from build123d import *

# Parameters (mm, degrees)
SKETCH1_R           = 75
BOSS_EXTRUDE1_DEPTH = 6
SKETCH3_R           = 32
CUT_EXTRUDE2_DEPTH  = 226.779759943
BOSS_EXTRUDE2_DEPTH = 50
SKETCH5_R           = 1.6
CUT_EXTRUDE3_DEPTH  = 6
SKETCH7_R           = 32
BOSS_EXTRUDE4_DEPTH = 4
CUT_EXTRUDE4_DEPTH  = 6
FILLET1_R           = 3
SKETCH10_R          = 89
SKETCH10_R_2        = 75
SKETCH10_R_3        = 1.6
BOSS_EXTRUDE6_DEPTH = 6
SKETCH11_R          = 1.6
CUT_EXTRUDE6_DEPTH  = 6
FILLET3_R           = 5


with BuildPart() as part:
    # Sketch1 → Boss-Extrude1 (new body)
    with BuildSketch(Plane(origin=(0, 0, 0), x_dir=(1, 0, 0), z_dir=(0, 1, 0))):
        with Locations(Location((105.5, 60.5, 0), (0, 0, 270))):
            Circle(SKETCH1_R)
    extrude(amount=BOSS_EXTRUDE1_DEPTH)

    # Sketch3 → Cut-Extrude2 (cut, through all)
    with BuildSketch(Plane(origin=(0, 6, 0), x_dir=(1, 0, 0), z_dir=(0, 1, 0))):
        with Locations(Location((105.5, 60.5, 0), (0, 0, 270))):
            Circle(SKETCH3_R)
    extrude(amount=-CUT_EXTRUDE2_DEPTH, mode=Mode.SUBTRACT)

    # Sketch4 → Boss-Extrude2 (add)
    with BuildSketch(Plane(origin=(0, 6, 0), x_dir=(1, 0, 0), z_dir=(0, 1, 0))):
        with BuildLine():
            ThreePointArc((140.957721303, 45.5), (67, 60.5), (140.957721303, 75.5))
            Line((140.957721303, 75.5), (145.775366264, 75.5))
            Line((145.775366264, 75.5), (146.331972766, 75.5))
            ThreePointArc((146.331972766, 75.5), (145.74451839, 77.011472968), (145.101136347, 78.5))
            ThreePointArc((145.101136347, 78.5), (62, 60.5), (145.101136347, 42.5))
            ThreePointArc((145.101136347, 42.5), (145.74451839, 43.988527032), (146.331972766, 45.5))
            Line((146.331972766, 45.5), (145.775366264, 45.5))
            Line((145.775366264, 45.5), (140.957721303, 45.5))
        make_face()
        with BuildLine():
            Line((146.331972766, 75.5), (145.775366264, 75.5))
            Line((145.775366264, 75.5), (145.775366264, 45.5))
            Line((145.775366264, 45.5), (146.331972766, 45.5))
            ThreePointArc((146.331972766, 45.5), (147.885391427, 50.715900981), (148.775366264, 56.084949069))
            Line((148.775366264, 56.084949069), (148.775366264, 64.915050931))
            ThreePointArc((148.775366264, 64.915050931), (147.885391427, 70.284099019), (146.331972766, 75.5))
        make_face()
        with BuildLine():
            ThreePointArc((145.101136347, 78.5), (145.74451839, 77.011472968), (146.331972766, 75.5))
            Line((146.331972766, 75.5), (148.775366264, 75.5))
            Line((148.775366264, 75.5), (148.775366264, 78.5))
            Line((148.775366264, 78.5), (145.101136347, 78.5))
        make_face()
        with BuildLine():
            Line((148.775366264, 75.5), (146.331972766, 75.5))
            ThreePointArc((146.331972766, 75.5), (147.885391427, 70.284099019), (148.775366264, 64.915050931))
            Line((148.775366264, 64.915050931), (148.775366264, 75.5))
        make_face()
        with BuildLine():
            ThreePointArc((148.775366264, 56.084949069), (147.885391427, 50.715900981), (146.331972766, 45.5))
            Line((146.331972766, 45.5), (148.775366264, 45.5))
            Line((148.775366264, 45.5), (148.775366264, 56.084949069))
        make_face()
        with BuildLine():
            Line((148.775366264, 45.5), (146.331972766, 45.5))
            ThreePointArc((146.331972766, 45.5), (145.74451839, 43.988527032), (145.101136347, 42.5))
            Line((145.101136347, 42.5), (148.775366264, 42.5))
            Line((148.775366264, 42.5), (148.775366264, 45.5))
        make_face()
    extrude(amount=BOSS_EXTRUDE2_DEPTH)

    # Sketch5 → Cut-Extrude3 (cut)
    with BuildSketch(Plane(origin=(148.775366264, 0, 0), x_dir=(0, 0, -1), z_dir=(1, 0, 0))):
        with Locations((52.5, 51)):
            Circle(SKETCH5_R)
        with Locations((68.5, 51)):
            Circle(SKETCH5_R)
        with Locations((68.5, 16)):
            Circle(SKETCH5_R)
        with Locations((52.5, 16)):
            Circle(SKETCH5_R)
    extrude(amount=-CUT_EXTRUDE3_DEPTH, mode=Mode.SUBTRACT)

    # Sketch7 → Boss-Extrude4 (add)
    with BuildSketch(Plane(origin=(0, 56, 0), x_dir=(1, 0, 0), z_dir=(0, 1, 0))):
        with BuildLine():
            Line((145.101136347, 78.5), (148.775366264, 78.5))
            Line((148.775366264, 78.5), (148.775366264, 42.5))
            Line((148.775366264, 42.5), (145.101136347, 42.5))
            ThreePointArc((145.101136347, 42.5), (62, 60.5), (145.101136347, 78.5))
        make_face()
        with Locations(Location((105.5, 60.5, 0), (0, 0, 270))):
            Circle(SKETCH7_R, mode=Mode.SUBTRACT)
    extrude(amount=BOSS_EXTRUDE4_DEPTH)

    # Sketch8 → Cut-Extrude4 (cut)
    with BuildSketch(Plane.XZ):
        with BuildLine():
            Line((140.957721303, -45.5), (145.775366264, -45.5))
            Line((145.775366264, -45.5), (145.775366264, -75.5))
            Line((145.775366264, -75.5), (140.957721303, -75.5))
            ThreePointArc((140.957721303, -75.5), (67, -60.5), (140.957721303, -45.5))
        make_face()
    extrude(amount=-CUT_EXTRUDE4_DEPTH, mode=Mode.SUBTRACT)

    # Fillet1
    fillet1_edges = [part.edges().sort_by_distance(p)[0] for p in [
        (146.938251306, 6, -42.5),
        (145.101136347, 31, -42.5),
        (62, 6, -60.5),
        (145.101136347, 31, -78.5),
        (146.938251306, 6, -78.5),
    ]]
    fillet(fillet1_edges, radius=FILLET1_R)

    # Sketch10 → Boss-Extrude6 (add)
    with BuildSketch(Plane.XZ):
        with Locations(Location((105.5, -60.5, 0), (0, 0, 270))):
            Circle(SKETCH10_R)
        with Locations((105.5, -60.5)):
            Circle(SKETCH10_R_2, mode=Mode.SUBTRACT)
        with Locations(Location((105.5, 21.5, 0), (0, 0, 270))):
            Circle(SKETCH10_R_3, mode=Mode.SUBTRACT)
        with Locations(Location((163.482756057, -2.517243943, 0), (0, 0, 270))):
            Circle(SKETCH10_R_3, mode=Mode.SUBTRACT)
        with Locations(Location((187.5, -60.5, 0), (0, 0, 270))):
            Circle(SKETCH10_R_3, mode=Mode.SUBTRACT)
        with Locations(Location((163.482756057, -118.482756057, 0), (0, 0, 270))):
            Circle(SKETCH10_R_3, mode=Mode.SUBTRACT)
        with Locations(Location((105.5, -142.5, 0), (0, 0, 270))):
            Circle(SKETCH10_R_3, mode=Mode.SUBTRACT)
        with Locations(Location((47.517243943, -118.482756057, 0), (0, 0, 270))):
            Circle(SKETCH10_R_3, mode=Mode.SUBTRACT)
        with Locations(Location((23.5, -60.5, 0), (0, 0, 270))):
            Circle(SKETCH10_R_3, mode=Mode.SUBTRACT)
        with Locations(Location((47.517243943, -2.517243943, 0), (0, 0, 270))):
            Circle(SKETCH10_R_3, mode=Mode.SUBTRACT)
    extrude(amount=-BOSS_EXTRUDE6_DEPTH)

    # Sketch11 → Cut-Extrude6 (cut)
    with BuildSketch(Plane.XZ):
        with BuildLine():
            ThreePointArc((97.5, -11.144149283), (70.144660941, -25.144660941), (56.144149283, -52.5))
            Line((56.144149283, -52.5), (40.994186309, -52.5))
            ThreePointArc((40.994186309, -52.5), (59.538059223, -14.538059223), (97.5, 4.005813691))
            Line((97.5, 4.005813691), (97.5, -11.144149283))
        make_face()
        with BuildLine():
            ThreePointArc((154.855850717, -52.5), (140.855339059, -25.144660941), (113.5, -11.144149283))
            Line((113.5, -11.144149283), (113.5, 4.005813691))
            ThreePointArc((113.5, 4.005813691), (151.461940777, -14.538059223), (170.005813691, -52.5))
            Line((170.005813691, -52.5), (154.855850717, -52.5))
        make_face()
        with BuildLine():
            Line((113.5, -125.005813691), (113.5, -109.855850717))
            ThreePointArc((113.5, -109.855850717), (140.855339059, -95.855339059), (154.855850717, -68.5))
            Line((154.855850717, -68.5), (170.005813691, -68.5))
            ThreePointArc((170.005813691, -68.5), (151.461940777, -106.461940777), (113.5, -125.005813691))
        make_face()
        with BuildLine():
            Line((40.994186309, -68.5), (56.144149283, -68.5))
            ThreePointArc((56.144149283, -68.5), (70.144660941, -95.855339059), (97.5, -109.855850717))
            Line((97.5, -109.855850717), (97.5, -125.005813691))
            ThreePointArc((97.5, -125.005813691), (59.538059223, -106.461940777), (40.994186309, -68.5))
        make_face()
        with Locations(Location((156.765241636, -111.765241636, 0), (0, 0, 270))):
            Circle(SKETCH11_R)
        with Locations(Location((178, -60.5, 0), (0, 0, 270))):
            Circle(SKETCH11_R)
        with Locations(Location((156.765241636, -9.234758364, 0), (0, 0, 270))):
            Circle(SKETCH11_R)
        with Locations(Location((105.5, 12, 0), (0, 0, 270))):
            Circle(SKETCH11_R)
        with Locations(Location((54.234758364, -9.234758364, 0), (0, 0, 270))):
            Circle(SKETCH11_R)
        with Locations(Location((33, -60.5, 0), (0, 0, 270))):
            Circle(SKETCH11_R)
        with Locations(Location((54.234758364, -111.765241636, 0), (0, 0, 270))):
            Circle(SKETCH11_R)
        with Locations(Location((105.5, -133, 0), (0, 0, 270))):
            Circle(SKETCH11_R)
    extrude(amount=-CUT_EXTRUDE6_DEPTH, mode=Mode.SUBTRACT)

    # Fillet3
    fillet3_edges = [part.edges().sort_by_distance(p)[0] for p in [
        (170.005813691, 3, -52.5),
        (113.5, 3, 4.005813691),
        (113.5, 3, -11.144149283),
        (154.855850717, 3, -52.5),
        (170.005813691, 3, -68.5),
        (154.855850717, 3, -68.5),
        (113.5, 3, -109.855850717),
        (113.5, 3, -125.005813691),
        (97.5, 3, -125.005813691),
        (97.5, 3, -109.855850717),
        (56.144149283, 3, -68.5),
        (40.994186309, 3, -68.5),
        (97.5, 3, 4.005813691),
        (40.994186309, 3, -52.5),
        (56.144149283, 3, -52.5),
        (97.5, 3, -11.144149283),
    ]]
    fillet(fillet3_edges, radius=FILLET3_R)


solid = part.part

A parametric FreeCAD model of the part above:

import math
import FreeCAD as App
import Part
import Sketcher
from FreeCAD import Vector


def edges_at(feature, points):
    """Names of the edges that pass closest to the given points."""
    edges = feature.Shape.Edges
    near = lambda p: min(range(len(edges)), key=lambda i: edges[i].distToShape(Part.Vertex(*p))[0])
    return sorted({f"Edge{near(p) + 1}" for p in points})

doc = App.newDocument("Part")
body = doc.addObject("PartDesign::Body", "Body")

sketch1 = doc.addObject("Sketcher::SketchObject", "Sketch")
body.addObject(sketch1)
sketch1.AttachmentSupport = (doc.XZ_Plane, [""])
sketch1.MapMode = "FlatFace"
sketch1.addGeometry(Part.Circle(Vector(106, -60, 0), Vector(0, 0, 1), 75), False)
sketch1.addConstraint(Sketcher.Constraint("Diameter", 0, 150.0))
sketch1.addConstraint(Sketcher.Constraint("DistanceX", -1, 1, 0, 3, 105.5))
sketch1.addConstraint(Sketcher.Constraint("DistanceY", 0, 3, -1, 1, 60.5))
pad1 = doc.addObject("PartDesign::Pad", "Pad")
body.addObject(pad1)
pad1.Profile = sketch1
pad1.Length = 6
pad1.Reversed = True

sketch2 = doc.addObject("Sketcher::SketchObject", "Sketch001")
body.addObject(sketch2)
sketch2.AttachmentSupport = (doc.XZ_Plane, [""])
sketch2.MapMode = "FlatFace"
sketch2.AttachmentOffset = App.Placement(Vector(0, 0, -6), App.Rotation())
sketch2.addGeometry(Part.Circle(Vector(106, -60, 0), Vector(0, 0, 1), 32), False)
sketch2.addConstraint(Sketcher.Constraint("Diameter", 0, 64.0))
sketch2.addConstraint(Sketcher.Constraint("DistanceX", -1, 1, 0, 3, 105.5))
sketch2.addConstraint(Sketcher.Constraint("DistanceY", 0, 3, -1, 1, 60.5))
pocket1 = doc.addObject("PartDesign::Pocket", "Pocket")
body.addObject(pocket1)
pocket1.Profile = sketch2
pocket1.Type = "ThroughAll"
pocket1.Reversed = True

sketch3 = doc.addObject("Sketcher::SketchObject", "Sketch002")
body.addObject(sketch3)
sketch3.AttachmentSupport = (doc.XZ_Plane, [""])
sketch3.MapMode = "FlatFace"
sketch3.AttachmentOffset = App.Placement(Vector(0, 0, -6), App.Rotation())
sketch3.addGeometry(Part.ArcOfCircle(Part.Circle(Vector(105.5, -60.5, 0), Vector(0, 0, 1), 43.5), math.radians(24), math.radians(336)), False)
sketch3.addGeometry(Part.LineSegment(Vector(145.1, -42.5, 0), Vector(148.8, -42.5, 0)), False)
sketch3.addGeometry(Part.LineSegment(Vector(148.8, -42.5, 0), Vector(148.8, -78.5, 0)), False)
sketch3.addGeometry(Part.LineSegment(Vector(148.8, -78.5, 0), Vector(145.1, -78.5, 0)), False)
sketch3.addGeometry(Part.ArcOfCircle(Part.Circle(Vector(105.5, -60.5, 0), Vector(0, 0, 1), 38.5), math.radians(23), math.radians(337)), False)
sketch3.addGeometry(Part.LineSegment(Vector(141, -75.5, 0), Vector(145.8, -75.5, 0)), False)
sketch3.addGeometry(Part.LineSegment(Vector(145.8, -75.5, 0), Vector(145.8, -45.5, 0)), False)
sketch3.addGeometry(Part.LineSegment(Vector(145.8, -45.5, 0), Vector(141, -45.5, 0)), False)
sketch3.addConstraint(Sketcher.Constraint("Coincident", 0, 1, 1, 1))
sketch3.addConstraint(Sketcher.Constraint("Coincident", 1, 2, 2, 1))
sketch3.addConstraint(Sketcher.Constraint("Coincident", 2, 2, 3, 1))
sketch3.addConstraint(Sketcher.Constraint("Coincident", 3, 2, 0, 2))
sketch3.addConstraint(Sketcher.Constraint("Coincident", 4, 2, 5, 1))
sketch3.addConstraint(Sketcher.Constraint("Coincident", 5, 2, 6, 1))
sketch3.addConstraint(Sketcher.Constraint("Coincident", 6, 2, 7, 1))
sketch3.addConstraint(Sketcher.Constraint("Coincident", 7, 2, 4, 1))
sketch3.addConstraint(Sketcher.Constraint("Horizontal", 1))
sketch3.addConstraint(Sketcher.Constraint("Vertical", 2))
sketch3.addConstraint(Sketcher.Constraint("Horizontal", 3))
sketch3.addConstraint(Sketcher.Constraint("Horizontal", 5))
sketch3.addConstraint(Sketcher.Constraint("Vertical", 6))
sketch3.addConstraint(Sketcher.Constraint("Horizontal", 7))
sketch3.addConstraint(Sketcher.Constraint("Coincident", 4, 3, 0, 3))
sketch3.addConstraint(Sketcher.Constraint("Vertical", 0, 1, 3, 2))
sketch3.addConstraint(Sketcher.Constraint("Vertical", 4, 2, 7, 2))
sketch3.addConstraint(Sketcher.Constraint("Radius", 0, 43.5))
sketch3.addConstraint(Sketcher.Constraint("Radius", 4, 38.5))
sketch3.addConstraint(Sketcher.Constraint("DistanceY", 2, 2, 2, 1, 36.0))
sketch3.addConstraint(Sketcher.Constraint("DistanceY", 6, 1, 6, 2, 30.0))
sketch3.addConstraint(Sketcher.Constraint("DistanceX", 5, 2, 2, 2, 3.0))
sketch3.addConstraint(Sketcher.Constraint("DistanceX", -1, 1, 0, 3, 105.5))
sketch3.addConstraint(Sketcher.Constraint("DistanceY", 0, 3, -1, 1, 60.5))
sketch3.addConstraint(Sketcher.Constraint("DistanceX", 1, 1, 1, 2, 3.67423))
pad2 = doc.addObject("PartDesign::Pad", "Pad001")
body.addObject(pad2)
pad2.Profile = sketch3
pad2.Length = 50
pad2.Reversed = True

sketch4 = doc.addObject("Sketcher::SketchObject", "Sketch003")
body.addObject(sketch4)
sketch4.AttachmentSupport = (doc.YZ_Plane, [""])
sketch4.MapMode = "FlatFace"
sketch4.AttachmentOffset = App.Placement(Vector(0, 0, 148.775366), App.Rotation())
sketch4.addGeometry(Part.Circle(Vector(51, -52.5, 0), Vector(0, 0, 1), 1.6), False)
sketch4.addGeometry(Part.Circle(Vector(51, -68.5, 0), Vector(0, 0, 1), 1.6), False)
sketch4.addGeometry(Part.Circle(Vector(16, -68.5, 0), Vector(0, 0, 1), 1.6), False)
sketch4.addGeometry(Part.Circle(Vector(16, -52.5, 0), Vector(0, 0, 1), 1.6), False)
sketch4.addConstraint(Sketcher.Constraint("Equal", 0, 1))
sketch4.addConstraint(Sketcher.Constraint("Equal", 1, 2))
sketch4.addConstraint(Sketcher.Constraint("Equal", 2, 3))
sketch4.addConstraint(Sketcher.Constraint("Horizontal", 1, 3, 2, 3))
sketch4.addConstraint(Sketcher.Constraint("Horizontal", 0, 3, 3, 3))
sketch4.addConstraint(Sketcher.Constraint("Vertical", 0, 3, 1, 3))
sketch4.addConstraint(Sketcher.Constraint("Vertical", 2, 3, 3, 3))
sketch4.addConstraint(Sketcher.Constraint("Diameter", 0, 3.2))
sketch4.addConstraint(Sketcher.Constraint("DistanceX", -1, 1, 0, 3, 51.0))
sketch4.addConstraint(Sketcher.Constraint("DistanceX", -1, 1, 2, 3, 16.0))
sketch4.addConstraint(Sketcher.Constraint("DistanceY", 1, 3, 0, 3, 16.0))
sketch4.addConstraint(Sketcher.Constraint("DistanceY", 0, 3, -1, 1, 52.5))
pocket2 = doc.addObject("PartDesign::Pocket", "Pocket001")
body.addObject(pocket2)
pocket2.Profile = sketch4
pocket2.Length = 6

sketch5 = doc.addObject("Sketcher::SketchObject", "Sketch004")
body.addObject(sketch5)
sketch5.AttachmentSupport = (doc.XZ_Plane, [""])
sketch5.MapMode = "FlatFace"
sketch5.AttachmentOffset = App.Placement(Vector(0, 0, -56), App.Rotation())
sketch5.addGeometry(Part.LineSegment(Vector(148.8, -78.5, 0), Vector(145.1, -78.5, 0)), False)
sketch5.addGeometry(Part.ArcOfCircle(Part.Circle(Vector(105.5, -60.5, 0), Vector(0, 0, 1), 43.5), math.radians(24), math.radians(336)), False)
sketch5.addGeometry(Part.LineSegment(Vector(145.1, -42.5, 0), Vector(148.8, -42.5, 0)), False)
sketch5.addGeometry(Part.LineSegment(Vector(148.8, -42.5, 0), Vector(148.8, -78.5, 0)), False)
sketch5.addGeometry(Part.Circle(Vector(105.5, -60.5, 0), Vector(0, 0, 1), 32), False)
sketch5.addConstraint(Sketcher.Constraint("Coincident", 0, 2, 1, 2))
sketch5.addConstraint(Sketcher.Constraint("Coincident", 1, 1, 2, 1))
sketch5.addConstraint(Sketcher.Constraint("Coincident", 2, 2, 3, 1))
sketch5.addConstraint(Sketcher.Constraint("Coincident", 3, 2, 0, 1))
sketch5.addConstraint(Sketcher.Constraint("Horizontal", 0))
sketch5.addConstraint(Sketcher.Constraint("Horizontal", 2))
sketch5.addConstraint(Sketcher.Constraint("Vertical", 3))
sketch5.addConstraint(Sketcher.Constraint("Coincident", 4, 3, 1, 3))
sketch5.addConstraint(Sketcher.Constraint("Vertical", 0, 2, 1, 1))
sketch5.addConstraint(Sketcher.Constraint("Diameter", 4, 64.0))
sketch5.addConstraint(Sketcher.Constraint("Radius", 1, 43.5))
sketch5.addConstraint(Sketcher.Constraint("DistanceY", 3, 2, 3, 1, 36.0))
sketch5.addConstraint(Sketcher.Constraint("DistanceX", -1, 1, 1, 3, 105.5))
sketch5.addConstraint(Sketcher.Constraint("DistanceY", 1, 3, -1, 1, 60.5))
sketch5.addConstraint(Sketcher.Constraint("DistanceX", 0, 2, 0, 1, 3.67423))
pad3 = doc.addObject("PartDesign::Pad", "Pad002")
body.addObject(pad3)
pad3.Profile = sketch5
pad3.Length = 4
pad3.Reversed = True

sketch6 = doc.addObject("Sketcher::SketchObject", "Sketch005")
body.addObject(sketch6)
sketch6.AttachmentSupport = (doc.XZ_Plane, [""])
sketch6.MapMode = "FlatFace"
sketch6.addGeometry(Part.LineSegment(Vector(145.8, -45.5, 0), Vector(141, -45.5, 0)), False)
sketch6.addGeometry(Part.ArcOfCircle(Part.Circle(Vector(105.5, -60.5, 0), Vector(0, 0, 1), 38.5), math.radians(23), math.radians(337)), False)
sketch6.addGeometry(Part.LineSegment(Vector(141, -75.5, 0), Vector(145.8, -75.5, 0)), False)
sketch6.addGeometry(Part.LineSegment(Vector(145.8, -75.5, 0), Vector(145.8, -45.5, 0)), False)
sketch6.addConstraint(Sketcher.Constraint("Coincident", 0, 2, 1, 1))
sketch6.addConstraint(Sketcher.Constraint("Coincident", 1, 2, 2, 1))
sketch6.addConstraint(Sketcher.Constraint("Coincident", 2, 2, 3, 1))
sketch6.addConstraint(Sketcher.Constraint("Coincident", 3, 2, 0, 1))
sketch6.addConstraint(Sketcher.Constraint("Horizontal", 0))
sketch6.addConstraint(Sketcher.Constraint("Horizontal", 2))
sketch6.addConstraint(Sketcher.Constraint("Vertical", 3))
sketch6.addConstraint(Sketcher.Constraint("Vertical", 0, 2, 1, 2))
sketch6.addConstraint(Sketcher.Constraint("Radius", 1, 38.5))
sketch6.addConstraint(Sketcher.Constraint("DistanceY", 3, 1, 3, 2, 30.0))
sketch6.addConstraint(Sketcher.Constraint("DistanceX", -1, 1, 1, 3, 105.5))
sketch6.addConstraint(Sketcher.Constraint("DistanceY", 1, 3, -1, 1, 60.5))
sketch6.addConstraint(Sketcher.Constraint("DistanceX", 0, 2, 0, 1, 4.817645))
pocket3 = doc.addObject("PartDesign::Pocket", "Pocket002")
body.addObject(pocket3)
pocket3.Profile = sketch6
pocket3.Length = 6
doc.recompute()

fillet = doc.addObject("PartDesign::Fillet", "Fillet")
body.addObject(fillet)
fillet.Base = (pocket3, edges_at(pocket3, [
    (146.938, 6, -42.5),
    (145.101, 31, -42.5),
    (62, 6, -60.5),
    (145.101, 31, -78.5),
    (146.938, 6, -78.5),
]))
fillet.Radius = 3

sketch7 = doc.addObject("Sketcher::SketchObject", "Sketch006")
body.addObject(sketch7)
sketch7.AttachmentSupport = (doc.XZ_Plane, [""])
sketch7.MapMode = "FlatFace"
sketch7.addGeometry(Part.Circle(Vector(105.5, -60.5, 0), Vector(0, 0, 1), 89), False)
sketch7.addGeometry(Part.Circle(Vector(47.5, -2.5, 0), Vector(0, 0, 1), 1.6), False)
sketch7.addGeometry(Part.Circle(Vector(105.5, 21.5, 0), Vector(0, 0, 1), 1.6), False)
sketch7.addGeometry(Part.Circle(Vector(105.5, -60.5, 0), Vector(0, 0, 1), 75), False)
sketch7.addGeometry(Part.Circle(Vector(23.5, -60.5, 0), Vector(0, 0, 1), 1.6), False)
sketch7.addGeometry(Part.Circle(Vector(47.5, -118.5, 0), Vector(0, 0, 1), 1.6), False)
sketch7.addGeometry(Part.Circle(Vector(163.5, -2.5, 0), Vector(0, 0, 1), 1.6), False)
sketch7.addGeometry(Part.Circle(Vector(187.5, -60.5, 0), Vector(0, 0, 1), 1.6), False)
sketch7.addGeometry(Part.Circle(Vector(105.5, -142.5, 0), Vector(0, 0, 1), 1.6), False)
sketch7.addGeometry(Part.Circle(Vector(163.5, -118.5, 0), Vector(0, 0, 1), 1.6), False)
sketch7.addConstraint(Sketcher.Constraint("Coincident", 3, 3, 0, 3))
sketch7.addConstraint(Sketcher.Constraint("Equal", 1, 2))
sketch7.addConstraint(Sketcher.Constraint("Equal", 2, 4))
sketch7.addConstraint(Sketcher.Constraint("Equal", 4, 5))
sketch7.addConstraint(Sketcher.Constraint("Equal", 5, 6))
sketch7.addConstraint(Sketcher.Constraint("Equal", 6, 7))
sketch7.addConstraint(Sketcher.Constraint("Equal", 7, 8))
sketch7.addConstraint(Sketcher.Constraint("Equal", 8, 9))
sketch7.addConstraint(Sketcher.Constraint("Horizontal", 3, 3, 4, 3))
sketch7.addConstraint(Sketcher.Constraint("Horizontal", 1, 3, 6, 3))
sketch7.addConstraint(Sketcher.Constraint("Horizontal", 4, 3, 7, 3))
sketch7.addConstraint(Sketcher.Constraint("Horizontal", 5, 3, 9, 3))
sketch7.addConstraint(Sketcher.Constraint("Vertical", 0, 3, 2, 3))
sketch7.addConstraint(Sketcher.Constraint("Vertical", 1, 3, 5, 3))
sketch7.addConstraint(Sketcher.Constraint("Vertical", 3, 3, 8, 3))
sketch7.addConstraint(Sketcher.Constraint("Vertical", 6, 3, 9, 3))
sketch7.addConstraint(Sketcher.Constraint("Diameter", 0, 178.0))
sketch7.addConstraint(Sketcher.Constraint("Diameter", 3, 150.0))
sketch7.addConstraint(Sketcher.Constraint("Diameter", 1, 3.2))
sketch7.addConstraint(Sketcher.Constraint("DistanceY", 0, 3, 2, 3, 82.0))
sketch7.addConstraint(Sketcher.Constraint("DistanceX", 4, 3, 0, 3, 82.0))
sketch7.addConstraint(Sketcher.Constraint("DistanceX", 0, 3, 7, 3, 82.0))
sketch7.addConstraint(Sketcher.Constraint("DistanceY", 8, 3, 0, 3, 82.0))
sketch7.addConstraint(Sketcher.Constraint("DistanceX", -1, 1, 0, 3, 105.5))
sketch7.addConstraint(Sketcher.Constraint("DistanceY", 0, 3, -1, 1, 60.5))
sketch7.addConstraint(Sketcher.Constraint("DistanceX", -1, 1, 1, 3, 47.517244))
sketch7.addConstraint(Sketcher.Constraint("DistanceY", 1, 3, -1, 1, 2.517244))
sketch7.addConstraint(Sketcher.Constraint("DistanceY", 5, 3, -1, 1, 118.482756))
sketch7.addConstraint(Sketcher.Constraint("DistanceX", -1, 1, 6, 3, 163.482756))
pad4 = doc.addObject("PartDesign::Pad", "Pad003")
body.addObject(pad4)
pad4.Profile = sketch7
pad4.Length = 6
pad4.Reversed = True

sketch8 = doc.addObject("Sketcher::SketchObject", "Sketch007")
body.addObject(sketch8)
sketch8.AttachmentSupport = (doc.XZ_Plane, [""])
sketch8.MapMode = "FlatFace"
sketch8.addGeometry(Part.ArcOfCircle(Part.Circle(Vector(105.5, -60.5, 0), Vector(0, 0, 1), 50), math.radians(99), math.radians(171)), False)
sketch8.addGeometry(Part.LineSegment(Vector(97.5, -11.1, 0), Vector(97.5, 4, 0)), False)
sketch8.addGeometry(Part.ArcOfCircle(Part.Circle(Vector(105.5, -60.5, 0), Vector(0, 0, 1), 65), math.radians(97), math.radians(173)), False)
sketch8.addGeometry(Part.LineSegment(Vector(41, -52.5, 0), Vector(56.1, -52.5, 0)), False)
sketch8.addGeometry(Part.ArcOfCircle(Part.Circle(Vector(105.5, -60.5, 0), Vector(0, 0, 1), 50), math.radians(9), math.radians(81)), False)
sketch8.addGeometry(Part.LineSegment(Vector(154.9, -52.5, 0), Vector(170, -52.5, 0)), False)
sketch8.addGeometry(Part.ArcOfCircle(Part.Circle(Vector(105.5, -60.5, 0), Vector(0, 0, 1), 65), math.radians(7), math.radians(83)), False)
sketch8.addGeometry(Part.LineSegment(Vector(113.5, 4, 0), Vector(113.5, -11.1, 0)), False)
sketch8.addGeometry(Part.LineSegment(Vector(113.5, -109.9, 0), Vector(113.5, -125, 0)), False)
sketch8.addGeometry(Part.ArcOfCircle(Part.Circle(Vector(105.5, -60.5, 0), Vector(0, 0, 1), 65), math.radians(-83), math.radians(-7)), False)
sketch8.addGeometry(Part.LineSegment(Vector(170, -68.5, 0), Vector(154.9, -68.5, 0)), False)
sketch8.addGeometry(Part.ArcOfCircle(Part.Circle(Vector(105.5, -60.5, 0), Vector(0, 0, 1), 50), math.radians(-81), math.radians(-9)), False)
sketch8.addGeometry(Part.LineSegment(Vector(56.1, -68.5, 0), Vector(41, -68.5, 0)), False)
sketch8.addGeometry(Part.ArcOfCircle(Part.Circle(Vector(105.5, -60.5, 0), Vector(0, 0, 1), 65), math.radians(-173), math.radians(-97)), False)
sketch8.addGeometry(Part.LineSegment(Vector(97.5, -125, 0), Vector(97.5, -109.9, 0)), False)
sketch8.addGeometry(Part.ArcOfCircle(Part.Circle(Vector(105.5, -60.5, 0), Vector(0, 0, 1), 50), math.radians(-171), math.radians(-99)), False)
sketch8.addGeometry(Part.Circle(Vector(156.8, -111.8, 0), Vector(0, 0, 1), 1.6), False)
sketch8.addGeometry(Part.Circle(Vector(178, -60.5, 0), Vector(0, 0, 1), 1.6), False)
sketch8.addGeometry(Part.Circle(Vector(156.8, -9.2, 0), Vector(0, 0, 1), 1.6), False)
sketch8.addGeometry(Part.Circle(Vector(105.5, 12, 0), Vector(0, 0, 1), 1.6), False)
sketch8.addGeometry(Part.Circle(Vector(54.2, -9.2, 0), Vector(0, 0, 1), 1.6), False)
sketch8.addGeometry(Part.Circle(Vector(33, -60.5, 0), Vector(0, 0, 1), 1.6), False)
sketch8.addGeometry(Part.Circle(Vector(54.2, -111.8, 0), Vector(0, 0, 1), 1.6), False)
sketch8.addGeometry(Part.Circle(Vector(105.5, -133, 0), Vector(0, 0, 1), 1.6), False)
sketch8.addConstraint(Sketcher.Constraint("Coincident", 0, 1, 1, 1))
sketch8.addConstraint(Sketcher.Constraint("Coincident", 1, 2, 2, 1))
sketch8.addConstraint(Sketcher.Constraint("Coincident", 2, 2, 3, 1))
sketch8.addConstraint(Sketcher.Constraint("Coincident", 3, 2, 0, 2))
sketch8.addConstraint(Sketcher.Constraint("Coincident", 4, 1, 5, 1))
sketch8.addConstraint(Sketcher.Constraint("Coincident", 5, 2, 6, 1))
sketch8.addConstraint(Sketcher.Constraint("Coincident", 6, 2, 7, 1))
sketch8.addConstraint(Sketcher.Constraint("Coincident", 7, 2, 4, 2))
sketch8.addConstraint(Sketcher.Constraint("Coincident", 8, 2, 9, 1))
sketch8.addConstraint(Sketcher.Constraint("Coincident", 9, 2, 10, 1))
sketch8.addConstraint(Sketcher.Constraint("Coincident", 10, 2, 11, 2))
sketch8.addConstraint(Sketcher.Constraint("Coincident", 11, 1, 8, 1))
sketch8.addConstraint(Sketcher.Constraint("Coincident", 12, 2, 13, 1))
sketch8.addConstraint(Sketcher.Constraint("Coincident", 13, 2, 14, 1))
sketch8.addConstraint(Sketcher.Constraint("Coincident", 14, 2, 15, 2))
sketch8.addConstraint(Sketcher.Constraint("Coincident", 15, 1, 12, 1))
sketch8.addConstraint(Sketcher.Constraint("Vertical", 1))
sketch8.addConstraint(Sketcher.Constraint("Horizontal", 3))
sketch8.addConstraint(Sketcher.Constraint("Horizontal", 5))
sketch8.addConstraint(Sketcher.Constraint("Vertical", 7))
sketch8.addConstraint(Sketcher.Constraint("Vertical", 8))
sketch8.addConstraint(Sketcher.Constraint("Horizontal", 10))
sketch8.addConstraint(Sketcher.Constraint("Horizontal", 12))
sketch8.addConstraint(Sketcher.Constraint("Vertical", 14))
sketch8.addConstraint(Sketcher.Constraint("Coincident", 2, 3, 0, 3))
sketch8.addConstraint(Sketcher.Constraint("Coincident", 4, 3, 0, 3))
sketch8.addConstraint(Sketcher.Constraint("Coincident", 6, 3, 0, 3))
sketch8.addConstraint(Sketcher.Constraint("Coincident", 9, 3, 0, 3))
sketch8.addConstraint(Sketcher.Constraint("Coincident", 11, 3, 0, 3))
sketch8.addConstraint(Sketcher.Constraint("Coincident", 13, 3, 0, 3))
sketch8.addConstraint(Sketcher.Constraint("Coincident", 15, 3, 0, 3))
sketch8.addConstraint(Sketcher.Constraint("Equal", 0, 4))
sketch8.addConstraint(Sketcher.Constraint("Equal", 2, 6))
sketch8.addConstraint(Sketcher.Constraint("Equal", 6, 9))
sketch8.addConstraint(Sketcher.Constraint("Equal", 4, 11))
sketch8.addConstraint(Sketcher.Constraint("Equal", 9, 13))
sketch8.addConstraint(Sketcher.Constraint("Equal", 11, 15))
sketch8.addConstraint(Sketcher.Constraint("Equal", 16, 17))
sketch8.addConstraint(Sketcher.Constraint("Equal", 17, 18))
sketch8.addConstraint(Sketcher.Constraint("Equal", 18, 19))
sketch8.addConstraint(Sketcher.Constraint("Equal", 19, 20))
sketch8.addConstraint(Sketcher.Constraint("Equal", 20, 21))
sketch8.addConstraint(Sketcher.Constraint("Equal", 21, 22))
sketch8.addConstraint(Sketcher.Constraint("Equal", 22, 23))
sketch8.addConstraint(Sketcher.Constraint("Horizontal", 15, 3, 17, 3))
sketch8.addConstraint(Sketcher.Constraint("Horizontal", 18, 3, 20, 3))
sketch8.addConstraint(Sketcher.Constraint("Horizontal", 17, 3, 21, 3))
sketch8.addConstraint(Sketcher.Constraint("Horizontal", 16, 3, 22, 3))
sketch8.addConstraint(Sketcher.Constraint("Horizontal", 3, 2, 4, 1))
sketch8.addConstraint(Sketcher.Constraint("Horizontal", 1, 2, 6, 2))
sketch8.addConstraint(Sketcher.Constraint("Horizontal", 10, 2, 12, 2))
sketch8.addConstraint(Sketcher.Constraint("Horizontal", 8, 2, 13, 2))
sketch8.addConstraint(Sketcher.Constraint("Vertical", 16, 3, 18, 3))
sketch8.addConstraint(Sketcher.Constraint("Vertical", 15, 3, 19, 3))
sketch8.addConstraint(Sketcher.Constraint("Vertical", 20, 3, 22, 3))
sketch8.addConstraint(Sketcher.Constraint("Vertical", 19, 3, 23, 3))
sketch8.addConstraint(Sketcher.Constraint("Vertical", 7, 2, 8, 2))
sketch8.addConstraint(Sketcher.Constraint("Vertical", 5, 2, 9, 2))
sketch8.addConstraint(Sketcher.Constraint("Equal", 12, 1))
sketch8.addConstraint(Sketcher.Constraint("Radius", 0, 50.0))
sketch8.addConstraint(Sketcher.Constraint("Radius", 2, 65.0))
sketch8.addConstraint(Sketcher.Constraint("Diameter", 16, 3.2))
sketch8.addConstraint(Sketcher.Constraint("DistanceX", -1, 1, 17, 3, 178.0))
sketch8.addConstraint(Sketcher.Constraint("DistanceY", -1, 1, 19, 3, 12.0))
sketch8.addConstraint(Sketcher.Constraint("DistanceX", -1, 1, 21, 3, 33.0))
sketch8.addConstraint(Sketcher.Constraint("DistanceY", 23, 3, -1, 1, 133.0))
sketch8.addConstraint(Sketcher.Constraint("DistanceX", 0, 1, 19, 3, 8.0))
sketch8.addConstraint(Sketcher.Constraint("DistanceX", -1, 1, 0, 3, 105.5))
sketch8.addConstraint(Sketcher.Constraint("DistanceY", 0, 3, -1, 1, 60.5))
sketch8.addConstraint(Sketcher.Constraint("DistanceX", -1, 1, 16, 3, 156.765242))
sketch8.addConstraint(Sketcher.Constraint("DistanceY", 16, 3, -1, 1, 111.765242))
sketch8.addConstraint(Sketcher.Constraint("DistanceY", 18, 3, -1, 1, 9.234758))
sketch8.addConstraint(Sketcher.Constraint("DistanceX", -1, 1, 20, 3, 54.234758))
pocket4 = doc.addObject("PartDesign::Pocket", "Pocket003")
body.addObject(pocket4)
pocket4.Profile = sketch8
pocket4.Length = 6
doc.recompute()

fillet2 = doc.addObject("PartDesign::Fillet", "Fillet001")
body.addObject(fillet2)
fillet2.Base = (pocket4, edges_at(pocket4, [
    (170.006, 3, -52.5),
    (113.5, 3, 4.006),
    (113.5, 3, -11.144),
    (154.856, 3, -52.5),
    (170.006, 3, -68.5),
    (154.856, 3, -68.5),
    (113.5, 3, -109.856),
    (113.5, 3, -125.006),
    (97.5, 3, -125.006),
    (97.5, 3, -109.856),
    (56.144, 3, -68.5),
    (40.994, 3, -68.5),
    (97.5, 3, 4.006),
    (40.994, 3, -52.5),
    (56.144, 3, -52.5),
    (97.5, 3, -11.144),
]))
fillet2.Radius = 5

doc.recompute()
